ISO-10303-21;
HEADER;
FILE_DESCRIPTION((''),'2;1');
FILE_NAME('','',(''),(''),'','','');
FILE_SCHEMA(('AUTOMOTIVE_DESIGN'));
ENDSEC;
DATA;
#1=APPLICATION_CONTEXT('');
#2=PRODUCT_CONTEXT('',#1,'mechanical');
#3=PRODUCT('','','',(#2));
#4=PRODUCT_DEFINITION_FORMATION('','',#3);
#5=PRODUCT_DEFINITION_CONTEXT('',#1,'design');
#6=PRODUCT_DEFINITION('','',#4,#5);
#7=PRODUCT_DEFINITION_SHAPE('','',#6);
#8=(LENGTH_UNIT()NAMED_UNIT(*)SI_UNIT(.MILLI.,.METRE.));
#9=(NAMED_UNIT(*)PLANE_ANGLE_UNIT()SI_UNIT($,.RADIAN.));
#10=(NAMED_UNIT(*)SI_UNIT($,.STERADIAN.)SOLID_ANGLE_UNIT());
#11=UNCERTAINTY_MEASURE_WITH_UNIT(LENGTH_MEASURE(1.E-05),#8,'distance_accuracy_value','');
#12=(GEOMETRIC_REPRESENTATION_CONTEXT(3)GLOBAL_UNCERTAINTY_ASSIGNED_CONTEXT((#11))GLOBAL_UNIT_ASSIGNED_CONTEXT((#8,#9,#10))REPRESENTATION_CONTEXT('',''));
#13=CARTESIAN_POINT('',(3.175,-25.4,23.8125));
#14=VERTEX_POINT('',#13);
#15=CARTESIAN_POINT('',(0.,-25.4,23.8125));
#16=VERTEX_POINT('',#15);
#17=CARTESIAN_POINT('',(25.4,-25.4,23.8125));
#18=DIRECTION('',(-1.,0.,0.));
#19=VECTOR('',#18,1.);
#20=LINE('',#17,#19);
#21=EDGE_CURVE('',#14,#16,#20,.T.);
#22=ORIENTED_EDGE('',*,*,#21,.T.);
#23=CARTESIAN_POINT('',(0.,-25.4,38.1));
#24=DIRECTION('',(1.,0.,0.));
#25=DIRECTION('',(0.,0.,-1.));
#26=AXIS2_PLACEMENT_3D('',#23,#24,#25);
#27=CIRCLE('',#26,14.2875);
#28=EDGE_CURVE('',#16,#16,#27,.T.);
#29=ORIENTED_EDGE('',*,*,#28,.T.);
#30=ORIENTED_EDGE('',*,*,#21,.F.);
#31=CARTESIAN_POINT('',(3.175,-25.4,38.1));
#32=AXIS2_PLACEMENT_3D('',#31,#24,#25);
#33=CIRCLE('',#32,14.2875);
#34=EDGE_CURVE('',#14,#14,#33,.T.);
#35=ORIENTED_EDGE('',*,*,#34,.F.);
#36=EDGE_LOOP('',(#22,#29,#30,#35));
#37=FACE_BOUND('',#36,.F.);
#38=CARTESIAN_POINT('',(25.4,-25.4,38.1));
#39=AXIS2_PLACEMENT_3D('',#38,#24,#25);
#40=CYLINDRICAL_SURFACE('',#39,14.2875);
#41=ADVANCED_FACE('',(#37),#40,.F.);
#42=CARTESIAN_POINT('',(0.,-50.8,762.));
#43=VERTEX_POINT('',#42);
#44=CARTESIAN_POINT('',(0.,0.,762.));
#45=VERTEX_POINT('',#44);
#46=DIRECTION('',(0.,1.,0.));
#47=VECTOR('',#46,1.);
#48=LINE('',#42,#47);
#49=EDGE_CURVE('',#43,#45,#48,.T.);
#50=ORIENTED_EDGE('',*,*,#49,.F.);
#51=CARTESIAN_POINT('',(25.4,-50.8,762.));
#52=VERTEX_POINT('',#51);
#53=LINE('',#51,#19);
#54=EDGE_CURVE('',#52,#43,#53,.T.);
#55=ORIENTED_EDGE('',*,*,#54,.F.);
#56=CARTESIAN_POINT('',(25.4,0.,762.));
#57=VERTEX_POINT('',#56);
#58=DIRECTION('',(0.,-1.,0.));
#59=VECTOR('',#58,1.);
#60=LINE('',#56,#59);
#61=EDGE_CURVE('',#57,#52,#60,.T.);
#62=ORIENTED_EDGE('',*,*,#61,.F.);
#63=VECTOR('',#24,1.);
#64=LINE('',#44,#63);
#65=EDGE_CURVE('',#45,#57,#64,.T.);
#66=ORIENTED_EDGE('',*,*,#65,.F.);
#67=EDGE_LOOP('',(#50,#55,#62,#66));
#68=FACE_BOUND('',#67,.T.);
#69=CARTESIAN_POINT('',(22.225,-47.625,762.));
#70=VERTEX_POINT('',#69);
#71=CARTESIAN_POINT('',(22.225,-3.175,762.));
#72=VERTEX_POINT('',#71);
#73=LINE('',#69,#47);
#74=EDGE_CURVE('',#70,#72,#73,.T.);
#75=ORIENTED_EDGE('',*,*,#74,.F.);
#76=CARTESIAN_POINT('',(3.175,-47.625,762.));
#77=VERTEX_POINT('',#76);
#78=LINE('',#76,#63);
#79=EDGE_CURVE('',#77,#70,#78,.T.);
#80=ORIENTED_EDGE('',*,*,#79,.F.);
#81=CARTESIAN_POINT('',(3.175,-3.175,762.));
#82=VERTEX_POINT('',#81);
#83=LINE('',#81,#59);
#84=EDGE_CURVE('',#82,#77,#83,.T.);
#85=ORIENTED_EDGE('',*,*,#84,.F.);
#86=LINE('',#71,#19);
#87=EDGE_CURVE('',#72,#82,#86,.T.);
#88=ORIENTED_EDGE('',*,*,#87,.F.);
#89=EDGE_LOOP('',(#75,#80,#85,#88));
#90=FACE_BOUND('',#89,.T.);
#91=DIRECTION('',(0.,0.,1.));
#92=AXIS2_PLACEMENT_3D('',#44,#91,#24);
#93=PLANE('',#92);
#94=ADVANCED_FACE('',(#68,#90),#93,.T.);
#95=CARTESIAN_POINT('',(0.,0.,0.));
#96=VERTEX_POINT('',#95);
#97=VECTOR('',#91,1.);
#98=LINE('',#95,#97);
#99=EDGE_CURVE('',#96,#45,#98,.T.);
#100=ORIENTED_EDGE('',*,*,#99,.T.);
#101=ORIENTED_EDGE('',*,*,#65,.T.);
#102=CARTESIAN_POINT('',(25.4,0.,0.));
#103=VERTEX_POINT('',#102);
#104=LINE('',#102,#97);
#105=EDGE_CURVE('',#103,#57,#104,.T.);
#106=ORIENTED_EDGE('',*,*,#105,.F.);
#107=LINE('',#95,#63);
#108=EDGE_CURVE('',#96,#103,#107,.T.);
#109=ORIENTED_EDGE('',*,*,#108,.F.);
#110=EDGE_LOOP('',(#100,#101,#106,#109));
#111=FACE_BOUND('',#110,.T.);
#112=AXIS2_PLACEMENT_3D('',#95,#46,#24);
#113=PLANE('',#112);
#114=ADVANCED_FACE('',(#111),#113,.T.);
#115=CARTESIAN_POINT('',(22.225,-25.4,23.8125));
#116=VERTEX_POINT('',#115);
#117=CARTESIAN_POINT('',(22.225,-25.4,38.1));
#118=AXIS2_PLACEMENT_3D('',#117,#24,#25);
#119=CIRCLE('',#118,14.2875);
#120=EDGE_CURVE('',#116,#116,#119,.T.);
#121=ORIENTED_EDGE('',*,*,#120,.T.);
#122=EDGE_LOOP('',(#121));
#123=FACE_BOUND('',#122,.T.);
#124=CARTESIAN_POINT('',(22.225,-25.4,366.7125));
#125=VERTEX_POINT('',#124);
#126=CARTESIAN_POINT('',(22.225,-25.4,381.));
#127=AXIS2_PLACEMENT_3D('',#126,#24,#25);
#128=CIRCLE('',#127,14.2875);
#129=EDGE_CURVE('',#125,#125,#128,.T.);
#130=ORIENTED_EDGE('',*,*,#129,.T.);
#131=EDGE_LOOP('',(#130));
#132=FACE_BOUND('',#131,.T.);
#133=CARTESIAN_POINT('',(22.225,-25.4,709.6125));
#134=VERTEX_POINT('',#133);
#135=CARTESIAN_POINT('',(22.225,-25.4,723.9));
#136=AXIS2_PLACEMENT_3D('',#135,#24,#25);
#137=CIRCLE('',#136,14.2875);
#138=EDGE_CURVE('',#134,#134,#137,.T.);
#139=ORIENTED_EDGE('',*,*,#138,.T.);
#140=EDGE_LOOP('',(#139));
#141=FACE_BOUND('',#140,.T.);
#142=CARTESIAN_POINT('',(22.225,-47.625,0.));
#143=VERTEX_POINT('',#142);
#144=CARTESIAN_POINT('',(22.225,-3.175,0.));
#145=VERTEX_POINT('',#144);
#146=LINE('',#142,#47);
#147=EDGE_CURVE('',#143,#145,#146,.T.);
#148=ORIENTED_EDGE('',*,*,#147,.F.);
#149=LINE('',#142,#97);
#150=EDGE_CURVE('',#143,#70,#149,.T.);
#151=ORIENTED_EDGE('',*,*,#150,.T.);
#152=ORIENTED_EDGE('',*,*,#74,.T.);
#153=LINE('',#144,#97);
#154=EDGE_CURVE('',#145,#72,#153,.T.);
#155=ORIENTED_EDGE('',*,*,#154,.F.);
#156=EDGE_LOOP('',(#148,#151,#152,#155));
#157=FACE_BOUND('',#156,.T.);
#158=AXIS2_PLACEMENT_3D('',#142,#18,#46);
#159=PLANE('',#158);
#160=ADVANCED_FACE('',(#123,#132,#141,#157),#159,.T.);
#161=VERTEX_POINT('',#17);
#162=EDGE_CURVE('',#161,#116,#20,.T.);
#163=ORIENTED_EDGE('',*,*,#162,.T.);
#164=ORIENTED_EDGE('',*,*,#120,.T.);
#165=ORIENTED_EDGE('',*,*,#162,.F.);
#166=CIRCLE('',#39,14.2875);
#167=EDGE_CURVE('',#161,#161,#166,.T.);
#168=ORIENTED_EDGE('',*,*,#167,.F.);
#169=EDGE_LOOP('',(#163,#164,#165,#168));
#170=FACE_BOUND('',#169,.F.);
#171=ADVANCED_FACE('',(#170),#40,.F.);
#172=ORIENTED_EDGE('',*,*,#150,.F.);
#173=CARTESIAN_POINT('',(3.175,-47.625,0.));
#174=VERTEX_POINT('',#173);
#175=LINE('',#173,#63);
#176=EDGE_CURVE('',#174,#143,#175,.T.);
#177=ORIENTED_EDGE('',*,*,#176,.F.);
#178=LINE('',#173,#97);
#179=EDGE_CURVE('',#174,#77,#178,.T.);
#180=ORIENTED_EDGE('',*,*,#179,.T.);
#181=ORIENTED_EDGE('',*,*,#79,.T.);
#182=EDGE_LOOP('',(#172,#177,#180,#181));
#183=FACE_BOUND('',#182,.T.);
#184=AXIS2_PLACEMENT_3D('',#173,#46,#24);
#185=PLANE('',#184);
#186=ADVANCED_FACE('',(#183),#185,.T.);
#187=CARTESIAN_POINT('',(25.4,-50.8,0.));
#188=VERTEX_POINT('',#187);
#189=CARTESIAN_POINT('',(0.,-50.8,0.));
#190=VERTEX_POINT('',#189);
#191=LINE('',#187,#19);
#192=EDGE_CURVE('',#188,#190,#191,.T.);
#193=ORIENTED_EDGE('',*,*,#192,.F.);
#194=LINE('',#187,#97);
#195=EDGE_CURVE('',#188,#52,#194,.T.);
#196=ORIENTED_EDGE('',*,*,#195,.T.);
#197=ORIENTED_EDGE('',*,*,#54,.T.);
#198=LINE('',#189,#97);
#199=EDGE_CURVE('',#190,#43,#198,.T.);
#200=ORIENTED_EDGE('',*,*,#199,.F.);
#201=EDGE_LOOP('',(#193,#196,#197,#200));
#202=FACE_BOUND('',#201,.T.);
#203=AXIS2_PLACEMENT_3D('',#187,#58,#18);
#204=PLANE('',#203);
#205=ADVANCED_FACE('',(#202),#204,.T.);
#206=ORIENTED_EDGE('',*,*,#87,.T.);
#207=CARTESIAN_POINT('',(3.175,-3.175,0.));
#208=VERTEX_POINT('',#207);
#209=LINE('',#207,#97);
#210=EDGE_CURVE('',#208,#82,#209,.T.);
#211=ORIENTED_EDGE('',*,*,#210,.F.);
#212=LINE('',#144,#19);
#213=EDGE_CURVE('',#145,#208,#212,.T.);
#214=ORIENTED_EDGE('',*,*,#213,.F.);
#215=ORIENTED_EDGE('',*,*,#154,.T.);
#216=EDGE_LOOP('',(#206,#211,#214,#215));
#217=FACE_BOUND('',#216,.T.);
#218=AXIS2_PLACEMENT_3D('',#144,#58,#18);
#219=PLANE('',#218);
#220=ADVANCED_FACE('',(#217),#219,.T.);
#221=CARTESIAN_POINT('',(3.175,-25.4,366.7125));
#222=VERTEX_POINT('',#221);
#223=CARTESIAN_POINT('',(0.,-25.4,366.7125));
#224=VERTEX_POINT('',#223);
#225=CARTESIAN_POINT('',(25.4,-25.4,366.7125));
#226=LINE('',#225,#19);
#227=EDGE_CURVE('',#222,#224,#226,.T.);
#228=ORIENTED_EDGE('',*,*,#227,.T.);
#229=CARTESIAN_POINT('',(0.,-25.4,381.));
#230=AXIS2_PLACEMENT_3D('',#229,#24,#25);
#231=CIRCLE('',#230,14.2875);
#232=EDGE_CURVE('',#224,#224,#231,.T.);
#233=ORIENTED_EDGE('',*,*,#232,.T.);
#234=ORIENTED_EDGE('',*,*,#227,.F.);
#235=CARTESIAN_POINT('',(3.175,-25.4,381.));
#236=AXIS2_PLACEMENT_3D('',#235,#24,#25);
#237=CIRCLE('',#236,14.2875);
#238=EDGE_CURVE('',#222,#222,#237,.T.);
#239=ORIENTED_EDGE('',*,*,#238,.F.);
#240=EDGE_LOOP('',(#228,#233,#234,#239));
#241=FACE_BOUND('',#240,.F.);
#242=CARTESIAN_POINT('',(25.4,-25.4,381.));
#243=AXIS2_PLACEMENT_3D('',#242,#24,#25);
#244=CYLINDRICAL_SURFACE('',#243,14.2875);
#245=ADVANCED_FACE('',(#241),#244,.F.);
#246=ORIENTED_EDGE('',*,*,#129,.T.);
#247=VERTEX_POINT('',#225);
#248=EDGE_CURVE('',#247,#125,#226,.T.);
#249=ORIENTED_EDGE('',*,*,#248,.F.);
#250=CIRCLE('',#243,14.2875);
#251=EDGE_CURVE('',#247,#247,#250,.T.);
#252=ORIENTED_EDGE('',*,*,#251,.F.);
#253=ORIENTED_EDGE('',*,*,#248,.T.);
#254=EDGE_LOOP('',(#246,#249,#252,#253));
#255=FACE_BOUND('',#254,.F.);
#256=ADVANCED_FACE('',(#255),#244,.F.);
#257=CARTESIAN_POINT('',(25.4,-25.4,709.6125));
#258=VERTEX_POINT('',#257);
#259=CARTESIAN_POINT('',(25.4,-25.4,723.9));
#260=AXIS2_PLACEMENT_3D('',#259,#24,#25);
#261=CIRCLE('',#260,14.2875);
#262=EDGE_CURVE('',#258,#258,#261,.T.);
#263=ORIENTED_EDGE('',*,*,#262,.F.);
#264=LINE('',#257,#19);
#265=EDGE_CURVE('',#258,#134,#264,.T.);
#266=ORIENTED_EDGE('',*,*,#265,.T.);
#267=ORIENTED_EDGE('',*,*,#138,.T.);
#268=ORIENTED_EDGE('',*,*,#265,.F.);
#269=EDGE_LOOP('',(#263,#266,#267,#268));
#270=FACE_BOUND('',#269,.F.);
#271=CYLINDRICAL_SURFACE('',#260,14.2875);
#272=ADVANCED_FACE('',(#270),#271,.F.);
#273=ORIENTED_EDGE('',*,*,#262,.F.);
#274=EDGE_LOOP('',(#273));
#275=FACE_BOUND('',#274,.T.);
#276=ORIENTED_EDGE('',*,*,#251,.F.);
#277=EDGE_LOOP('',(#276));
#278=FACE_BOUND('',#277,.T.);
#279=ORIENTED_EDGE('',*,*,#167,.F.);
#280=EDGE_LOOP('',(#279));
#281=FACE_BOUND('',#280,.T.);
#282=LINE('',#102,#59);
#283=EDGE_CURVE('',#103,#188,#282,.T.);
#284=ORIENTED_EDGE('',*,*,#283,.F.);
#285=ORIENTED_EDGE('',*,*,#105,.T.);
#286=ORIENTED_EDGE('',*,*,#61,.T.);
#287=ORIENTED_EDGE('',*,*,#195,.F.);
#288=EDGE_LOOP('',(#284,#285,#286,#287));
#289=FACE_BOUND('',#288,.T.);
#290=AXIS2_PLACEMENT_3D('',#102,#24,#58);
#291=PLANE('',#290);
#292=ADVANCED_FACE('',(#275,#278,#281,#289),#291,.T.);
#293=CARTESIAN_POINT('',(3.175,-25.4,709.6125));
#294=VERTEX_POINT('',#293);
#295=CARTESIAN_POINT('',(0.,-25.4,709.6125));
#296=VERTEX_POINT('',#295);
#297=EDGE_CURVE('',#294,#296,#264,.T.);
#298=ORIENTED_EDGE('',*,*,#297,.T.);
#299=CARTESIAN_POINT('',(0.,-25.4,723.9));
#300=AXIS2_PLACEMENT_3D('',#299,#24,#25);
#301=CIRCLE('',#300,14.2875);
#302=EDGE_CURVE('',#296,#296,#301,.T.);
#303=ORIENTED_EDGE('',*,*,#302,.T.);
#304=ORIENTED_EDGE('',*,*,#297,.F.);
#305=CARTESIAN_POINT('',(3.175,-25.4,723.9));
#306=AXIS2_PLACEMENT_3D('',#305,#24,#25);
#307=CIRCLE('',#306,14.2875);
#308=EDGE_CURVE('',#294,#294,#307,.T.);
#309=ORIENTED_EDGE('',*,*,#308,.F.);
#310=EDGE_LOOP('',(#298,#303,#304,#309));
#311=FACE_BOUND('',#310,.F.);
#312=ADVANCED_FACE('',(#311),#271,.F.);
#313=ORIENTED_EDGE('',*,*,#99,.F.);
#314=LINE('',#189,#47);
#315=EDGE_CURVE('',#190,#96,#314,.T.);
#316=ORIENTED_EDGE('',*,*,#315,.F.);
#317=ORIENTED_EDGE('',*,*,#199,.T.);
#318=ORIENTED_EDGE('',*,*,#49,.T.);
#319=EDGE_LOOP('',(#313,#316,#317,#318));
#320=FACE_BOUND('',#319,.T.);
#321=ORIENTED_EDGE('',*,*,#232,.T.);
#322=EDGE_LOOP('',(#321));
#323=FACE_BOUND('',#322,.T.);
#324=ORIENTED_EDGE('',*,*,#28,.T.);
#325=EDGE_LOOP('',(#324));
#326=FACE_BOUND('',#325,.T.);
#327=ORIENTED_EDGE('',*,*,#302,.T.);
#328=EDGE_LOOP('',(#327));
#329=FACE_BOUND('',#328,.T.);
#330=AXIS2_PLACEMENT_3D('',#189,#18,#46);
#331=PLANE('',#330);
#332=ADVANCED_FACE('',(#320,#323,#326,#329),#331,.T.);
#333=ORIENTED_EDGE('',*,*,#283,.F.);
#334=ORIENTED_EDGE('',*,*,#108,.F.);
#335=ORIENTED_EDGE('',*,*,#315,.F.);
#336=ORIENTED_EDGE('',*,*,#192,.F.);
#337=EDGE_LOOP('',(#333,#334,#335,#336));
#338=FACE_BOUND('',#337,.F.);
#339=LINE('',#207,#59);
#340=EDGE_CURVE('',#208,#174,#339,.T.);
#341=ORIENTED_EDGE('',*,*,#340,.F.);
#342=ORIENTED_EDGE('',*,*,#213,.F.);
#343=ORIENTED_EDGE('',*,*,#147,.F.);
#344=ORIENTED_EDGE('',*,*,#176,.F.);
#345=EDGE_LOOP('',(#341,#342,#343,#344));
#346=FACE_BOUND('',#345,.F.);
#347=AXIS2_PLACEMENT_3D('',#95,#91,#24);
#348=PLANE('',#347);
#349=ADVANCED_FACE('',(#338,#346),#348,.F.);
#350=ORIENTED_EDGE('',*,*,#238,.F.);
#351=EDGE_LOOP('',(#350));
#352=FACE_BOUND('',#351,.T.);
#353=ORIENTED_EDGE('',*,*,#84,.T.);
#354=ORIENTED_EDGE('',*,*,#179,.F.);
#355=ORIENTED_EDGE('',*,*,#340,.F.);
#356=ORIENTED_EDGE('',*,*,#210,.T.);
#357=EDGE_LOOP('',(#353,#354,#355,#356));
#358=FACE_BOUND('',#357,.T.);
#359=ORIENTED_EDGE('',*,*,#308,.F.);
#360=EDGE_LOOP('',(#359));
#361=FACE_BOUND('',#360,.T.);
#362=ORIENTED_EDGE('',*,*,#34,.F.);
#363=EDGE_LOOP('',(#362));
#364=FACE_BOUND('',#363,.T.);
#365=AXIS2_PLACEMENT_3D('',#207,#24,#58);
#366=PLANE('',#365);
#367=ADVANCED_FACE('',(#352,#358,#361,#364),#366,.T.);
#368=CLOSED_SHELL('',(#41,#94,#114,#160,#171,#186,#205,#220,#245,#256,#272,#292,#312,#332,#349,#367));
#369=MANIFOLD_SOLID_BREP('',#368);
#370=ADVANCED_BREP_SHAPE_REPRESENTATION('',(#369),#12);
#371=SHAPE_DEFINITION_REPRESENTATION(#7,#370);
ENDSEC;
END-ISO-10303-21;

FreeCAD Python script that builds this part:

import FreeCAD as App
import Part
import Sketcher

V = App.Vector
Q = App.Units.Quantity


def add_polygon(sketch, points):
    """Adds a closed chain of lines whose ends are joined by coincident constraints."""
    first, n = sketch.GeometryCount, len(points)
    for a, b in zip(points, points[1:] + points[:1]):
        sketch.addGeometry(Part.LineSegment(App.Vector(*a, 0), App.Vector(*b, 0)), False)
    for i in range(n):
        sketch.addConstraint(Sketcher.Constraint("Coincident", first + i, 2, first + (i + 1) % n, 1))

doc = App.newDocument("Part")
body = doc.addObject("PartDesign::Body", "Body")

sketch1 = doc.addObject("Sketcher::SketchObject", "Sketch")
body.addObject(sketch1)
sketch1.AttachmentSupport = (doc.XY_Plane, [""])
sketch1.MapMode = "FlatFace"
add_polygon(sketch1, [(25, 0), (0, 0), (0, -51), (25, -51)])
add_polygon(sketch1, [(3, -3), (22, -3), (22, -48), (3, -48)])
sketch1.addConstraint([
    Sketcher.Constraint("Horizontal", 0),
    Sketcher.Constraint("Vertical", 1),
    Sketcher.Constraint("Horizontal", 2),
    Sketcher.Constraint("Vertical", 3),
    Sketcher.Constraint("Horizontal", 4),
    Sketcher.Constraint("Vertical", 5),
    Sketcher.Constraint("Horizontal", 6),
    Sketcher.Constraint("Vertical", 7),
    Sketcher.Constraint("Coincident", 0, 2, -1, 1),
    Sketcher.Constraint("DistanceX", 0, 2, 0, 1, Q("1 in")),
    Sketcher.Constraint("DistanceY", 1, 2, 1, 1, Q("2 in")),
    Sketcher.Constraint("DistanceY", 4, 2, -1, 1, Q("0.125 in")),
    Sketcher.Constraint("DistanceX", -1, 1, 6, 2, Q("0.125 in")),
    Sketcher.Constraint("DistanceX", 4, 2, 3, 2, Q("0.125 in")),
    Sketcher.Constraint("DistanceY", 2, 2, 5, 2, Q("0.125 in")),
])
pad1 = doc.addObject("PartDesign::Pad", "Pad")
body.addObject(pad1)
pad1.Profile = sketch1
pad1.Length = Q("30 in")

sketch2 = doc.addObject("Sketcher::SketchObject", "Sketch001")
body.addObject(sketch2)
sketch2.AttachmentSupport = (doc.YZ_Plane, [""])
sketch2.MapMode = "FlatFace"
sketch2.AttachmentOffset = App.Placement(V(0, 0, 1 * 25.4), App.Rotation())
sketch2.addGeometry(Part.Circle(V(-25, 38, 0), V(0, 0, 1), 14), False)
sketch2.addConstraint([
    Sketcher.Constraint("Diameter", 0, Q("1.125 in")),
    Sketcher.Constraint("DistanceX", 0, 3, -1, 1, Q("1 in")),
    Sketcher.Constraint("DistanceY", -1, 1, 0, 3, Q("1.5 in")),
])
pocket1 = doc.addObject("PartDesign::Pocket", "Pocket")
body.addObject(pocket1)
pocket1.Profile = sketch2
pocket1.Length = Q("1 in")

sketch3 = doc.addObject("Sketcher::SketchObject", "Sketch002")
body.addObject(sketch3)
sketch3.AttachmentSupport = (doc.YZ_Plane, [""])
sketch3.MapMode = "FlatFace"
sketch3.AttachmentOffset = App.Placement(V(0, 0, 1 * 25.4), App.Rotation())
sketch3.addGeometry([
    Part.Circle(V(-25, 724, 0), V(0, 0, 1), 14),
    Part.Circle(V(-25, 381, 0), V(0, 0, 1), 14),
], False)
sketch3.addConstraint([
    Sketcher.Constraint("Equal", 0, 1),
    Sketcher.Constraint("Vertical", 0, 3, 1, 3),
    Sketcher.Constraint("Diameter", 0, Q("1.125 in")),
    Sketcher.Constraint("DistanceX", 0, 3, -1, 1, Q("1 in")),
    Sketcher.Constraint("DistanceY", 1, 3, 0, 3, Q("13.5 in")),
    Sketcher.Constraint("DistanceY", -1, 1, 1, 3, Q("15 in")),
])
pocket2 = doc.addObject("PartDesign::Pocket", "Pocket001")
body.addObject(pocket2)
pocket2.Profile = sketch3
pocket2.Length = Q("1 in")

doc.recompute()
